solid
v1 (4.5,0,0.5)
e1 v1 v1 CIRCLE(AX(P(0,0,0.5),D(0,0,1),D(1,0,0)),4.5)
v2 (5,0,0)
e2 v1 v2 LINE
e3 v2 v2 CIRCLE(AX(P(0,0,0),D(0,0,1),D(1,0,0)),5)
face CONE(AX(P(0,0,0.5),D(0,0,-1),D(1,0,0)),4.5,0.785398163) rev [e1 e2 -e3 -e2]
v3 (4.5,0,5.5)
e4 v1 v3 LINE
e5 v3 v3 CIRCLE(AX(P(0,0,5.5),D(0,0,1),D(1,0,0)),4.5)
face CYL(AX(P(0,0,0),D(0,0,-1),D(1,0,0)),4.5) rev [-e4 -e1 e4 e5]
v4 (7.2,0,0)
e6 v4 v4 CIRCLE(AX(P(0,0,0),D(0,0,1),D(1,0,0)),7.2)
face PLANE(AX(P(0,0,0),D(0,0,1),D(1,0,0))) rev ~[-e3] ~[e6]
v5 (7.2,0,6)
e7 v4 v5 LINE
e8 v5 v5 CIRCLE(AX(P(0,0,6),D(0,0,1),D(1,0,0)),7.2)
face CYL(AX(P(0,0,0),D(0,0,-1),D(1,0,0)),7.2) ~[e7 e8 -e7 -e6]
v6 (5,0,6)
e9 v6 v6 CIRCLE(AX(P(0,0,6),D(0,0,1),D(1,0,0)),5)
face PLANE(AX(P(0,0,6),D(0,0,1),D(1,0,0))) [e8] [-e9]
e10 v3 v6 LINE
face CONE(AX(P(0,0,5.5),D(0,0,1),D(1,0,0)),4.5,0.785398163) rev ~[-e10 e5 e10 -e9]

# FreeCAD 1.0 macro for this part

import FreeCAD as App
import Part
import Sketcher

V = App.Vector
Q = App.Units.Quantity


def edges_at(feature, points):
    """Names of the edges that pass closest to the given points."""
    edges = feature.Shape.Edges
    near = lambda p: min(range(len(edges)), key=lambda i: edges[i].distToShape(Part.Vertex(*p))[0])
    return sorted({f"Edge{near(p) + 1}" for p in points})

doc = App.newDocument("Part")
body = doc.addObject("PartDesign::Body", "Body")

# Sketch on XY plane
sketch1 = body.newObject("Sketcher::SketchObject", "Sketch")
sketch1.AttachmentSupport = (doc.getObject("XY_Plane"), [""])
sketch1.MapMode = "FlatFace"
sketch1.addGeometry([
    Part.Circle(V(0, 0, 0), V(0, 0, 1), 7.2),
    Part.Circle(V(0, 0, 0), V(0, 0, 1), 4.5),
], False)
sketch1.addConstraint([
    Sketcher.Constraint("Coincident", 0, 3, -1, 1),
    Sketcher.Constraint("Coincident", 1, 3, -1, 1),
    Sketcher.Constraint("Diameter", 1, Q("9 mm")),
    Sketcher.Constraint("Diameter", 0, Q("14.4 mm")),
])
pad1 = body.newObject("PartDesign::Pad", "Pad")
pad1.Profile = sketch1
pad1.Length = 6
doc.recompute()

chamfer = body.newObject("PartDesign::Chamfer", "Chamfer")
chamfer.Base = (pad1, edges_at(pad1, [(-4.5, 0, 6)]))
chamfer.ChamferType = "Two distances"
chamfer.Size = 0.5
chamfer.Size2 = 0.5
doc.recompute()

chamfer2 = body.newObject("PartDesign::Chamfer", "Chamfer001")
chamfer2.Base = (chamfer, edges_at(chamfer, [(-4.5, 0, 0)]))
chamfer2.ChamferType = "Two distances"
chamfer2.Size = 0.5
chamfer2.Size2 = 0.5

doc.recompute()
